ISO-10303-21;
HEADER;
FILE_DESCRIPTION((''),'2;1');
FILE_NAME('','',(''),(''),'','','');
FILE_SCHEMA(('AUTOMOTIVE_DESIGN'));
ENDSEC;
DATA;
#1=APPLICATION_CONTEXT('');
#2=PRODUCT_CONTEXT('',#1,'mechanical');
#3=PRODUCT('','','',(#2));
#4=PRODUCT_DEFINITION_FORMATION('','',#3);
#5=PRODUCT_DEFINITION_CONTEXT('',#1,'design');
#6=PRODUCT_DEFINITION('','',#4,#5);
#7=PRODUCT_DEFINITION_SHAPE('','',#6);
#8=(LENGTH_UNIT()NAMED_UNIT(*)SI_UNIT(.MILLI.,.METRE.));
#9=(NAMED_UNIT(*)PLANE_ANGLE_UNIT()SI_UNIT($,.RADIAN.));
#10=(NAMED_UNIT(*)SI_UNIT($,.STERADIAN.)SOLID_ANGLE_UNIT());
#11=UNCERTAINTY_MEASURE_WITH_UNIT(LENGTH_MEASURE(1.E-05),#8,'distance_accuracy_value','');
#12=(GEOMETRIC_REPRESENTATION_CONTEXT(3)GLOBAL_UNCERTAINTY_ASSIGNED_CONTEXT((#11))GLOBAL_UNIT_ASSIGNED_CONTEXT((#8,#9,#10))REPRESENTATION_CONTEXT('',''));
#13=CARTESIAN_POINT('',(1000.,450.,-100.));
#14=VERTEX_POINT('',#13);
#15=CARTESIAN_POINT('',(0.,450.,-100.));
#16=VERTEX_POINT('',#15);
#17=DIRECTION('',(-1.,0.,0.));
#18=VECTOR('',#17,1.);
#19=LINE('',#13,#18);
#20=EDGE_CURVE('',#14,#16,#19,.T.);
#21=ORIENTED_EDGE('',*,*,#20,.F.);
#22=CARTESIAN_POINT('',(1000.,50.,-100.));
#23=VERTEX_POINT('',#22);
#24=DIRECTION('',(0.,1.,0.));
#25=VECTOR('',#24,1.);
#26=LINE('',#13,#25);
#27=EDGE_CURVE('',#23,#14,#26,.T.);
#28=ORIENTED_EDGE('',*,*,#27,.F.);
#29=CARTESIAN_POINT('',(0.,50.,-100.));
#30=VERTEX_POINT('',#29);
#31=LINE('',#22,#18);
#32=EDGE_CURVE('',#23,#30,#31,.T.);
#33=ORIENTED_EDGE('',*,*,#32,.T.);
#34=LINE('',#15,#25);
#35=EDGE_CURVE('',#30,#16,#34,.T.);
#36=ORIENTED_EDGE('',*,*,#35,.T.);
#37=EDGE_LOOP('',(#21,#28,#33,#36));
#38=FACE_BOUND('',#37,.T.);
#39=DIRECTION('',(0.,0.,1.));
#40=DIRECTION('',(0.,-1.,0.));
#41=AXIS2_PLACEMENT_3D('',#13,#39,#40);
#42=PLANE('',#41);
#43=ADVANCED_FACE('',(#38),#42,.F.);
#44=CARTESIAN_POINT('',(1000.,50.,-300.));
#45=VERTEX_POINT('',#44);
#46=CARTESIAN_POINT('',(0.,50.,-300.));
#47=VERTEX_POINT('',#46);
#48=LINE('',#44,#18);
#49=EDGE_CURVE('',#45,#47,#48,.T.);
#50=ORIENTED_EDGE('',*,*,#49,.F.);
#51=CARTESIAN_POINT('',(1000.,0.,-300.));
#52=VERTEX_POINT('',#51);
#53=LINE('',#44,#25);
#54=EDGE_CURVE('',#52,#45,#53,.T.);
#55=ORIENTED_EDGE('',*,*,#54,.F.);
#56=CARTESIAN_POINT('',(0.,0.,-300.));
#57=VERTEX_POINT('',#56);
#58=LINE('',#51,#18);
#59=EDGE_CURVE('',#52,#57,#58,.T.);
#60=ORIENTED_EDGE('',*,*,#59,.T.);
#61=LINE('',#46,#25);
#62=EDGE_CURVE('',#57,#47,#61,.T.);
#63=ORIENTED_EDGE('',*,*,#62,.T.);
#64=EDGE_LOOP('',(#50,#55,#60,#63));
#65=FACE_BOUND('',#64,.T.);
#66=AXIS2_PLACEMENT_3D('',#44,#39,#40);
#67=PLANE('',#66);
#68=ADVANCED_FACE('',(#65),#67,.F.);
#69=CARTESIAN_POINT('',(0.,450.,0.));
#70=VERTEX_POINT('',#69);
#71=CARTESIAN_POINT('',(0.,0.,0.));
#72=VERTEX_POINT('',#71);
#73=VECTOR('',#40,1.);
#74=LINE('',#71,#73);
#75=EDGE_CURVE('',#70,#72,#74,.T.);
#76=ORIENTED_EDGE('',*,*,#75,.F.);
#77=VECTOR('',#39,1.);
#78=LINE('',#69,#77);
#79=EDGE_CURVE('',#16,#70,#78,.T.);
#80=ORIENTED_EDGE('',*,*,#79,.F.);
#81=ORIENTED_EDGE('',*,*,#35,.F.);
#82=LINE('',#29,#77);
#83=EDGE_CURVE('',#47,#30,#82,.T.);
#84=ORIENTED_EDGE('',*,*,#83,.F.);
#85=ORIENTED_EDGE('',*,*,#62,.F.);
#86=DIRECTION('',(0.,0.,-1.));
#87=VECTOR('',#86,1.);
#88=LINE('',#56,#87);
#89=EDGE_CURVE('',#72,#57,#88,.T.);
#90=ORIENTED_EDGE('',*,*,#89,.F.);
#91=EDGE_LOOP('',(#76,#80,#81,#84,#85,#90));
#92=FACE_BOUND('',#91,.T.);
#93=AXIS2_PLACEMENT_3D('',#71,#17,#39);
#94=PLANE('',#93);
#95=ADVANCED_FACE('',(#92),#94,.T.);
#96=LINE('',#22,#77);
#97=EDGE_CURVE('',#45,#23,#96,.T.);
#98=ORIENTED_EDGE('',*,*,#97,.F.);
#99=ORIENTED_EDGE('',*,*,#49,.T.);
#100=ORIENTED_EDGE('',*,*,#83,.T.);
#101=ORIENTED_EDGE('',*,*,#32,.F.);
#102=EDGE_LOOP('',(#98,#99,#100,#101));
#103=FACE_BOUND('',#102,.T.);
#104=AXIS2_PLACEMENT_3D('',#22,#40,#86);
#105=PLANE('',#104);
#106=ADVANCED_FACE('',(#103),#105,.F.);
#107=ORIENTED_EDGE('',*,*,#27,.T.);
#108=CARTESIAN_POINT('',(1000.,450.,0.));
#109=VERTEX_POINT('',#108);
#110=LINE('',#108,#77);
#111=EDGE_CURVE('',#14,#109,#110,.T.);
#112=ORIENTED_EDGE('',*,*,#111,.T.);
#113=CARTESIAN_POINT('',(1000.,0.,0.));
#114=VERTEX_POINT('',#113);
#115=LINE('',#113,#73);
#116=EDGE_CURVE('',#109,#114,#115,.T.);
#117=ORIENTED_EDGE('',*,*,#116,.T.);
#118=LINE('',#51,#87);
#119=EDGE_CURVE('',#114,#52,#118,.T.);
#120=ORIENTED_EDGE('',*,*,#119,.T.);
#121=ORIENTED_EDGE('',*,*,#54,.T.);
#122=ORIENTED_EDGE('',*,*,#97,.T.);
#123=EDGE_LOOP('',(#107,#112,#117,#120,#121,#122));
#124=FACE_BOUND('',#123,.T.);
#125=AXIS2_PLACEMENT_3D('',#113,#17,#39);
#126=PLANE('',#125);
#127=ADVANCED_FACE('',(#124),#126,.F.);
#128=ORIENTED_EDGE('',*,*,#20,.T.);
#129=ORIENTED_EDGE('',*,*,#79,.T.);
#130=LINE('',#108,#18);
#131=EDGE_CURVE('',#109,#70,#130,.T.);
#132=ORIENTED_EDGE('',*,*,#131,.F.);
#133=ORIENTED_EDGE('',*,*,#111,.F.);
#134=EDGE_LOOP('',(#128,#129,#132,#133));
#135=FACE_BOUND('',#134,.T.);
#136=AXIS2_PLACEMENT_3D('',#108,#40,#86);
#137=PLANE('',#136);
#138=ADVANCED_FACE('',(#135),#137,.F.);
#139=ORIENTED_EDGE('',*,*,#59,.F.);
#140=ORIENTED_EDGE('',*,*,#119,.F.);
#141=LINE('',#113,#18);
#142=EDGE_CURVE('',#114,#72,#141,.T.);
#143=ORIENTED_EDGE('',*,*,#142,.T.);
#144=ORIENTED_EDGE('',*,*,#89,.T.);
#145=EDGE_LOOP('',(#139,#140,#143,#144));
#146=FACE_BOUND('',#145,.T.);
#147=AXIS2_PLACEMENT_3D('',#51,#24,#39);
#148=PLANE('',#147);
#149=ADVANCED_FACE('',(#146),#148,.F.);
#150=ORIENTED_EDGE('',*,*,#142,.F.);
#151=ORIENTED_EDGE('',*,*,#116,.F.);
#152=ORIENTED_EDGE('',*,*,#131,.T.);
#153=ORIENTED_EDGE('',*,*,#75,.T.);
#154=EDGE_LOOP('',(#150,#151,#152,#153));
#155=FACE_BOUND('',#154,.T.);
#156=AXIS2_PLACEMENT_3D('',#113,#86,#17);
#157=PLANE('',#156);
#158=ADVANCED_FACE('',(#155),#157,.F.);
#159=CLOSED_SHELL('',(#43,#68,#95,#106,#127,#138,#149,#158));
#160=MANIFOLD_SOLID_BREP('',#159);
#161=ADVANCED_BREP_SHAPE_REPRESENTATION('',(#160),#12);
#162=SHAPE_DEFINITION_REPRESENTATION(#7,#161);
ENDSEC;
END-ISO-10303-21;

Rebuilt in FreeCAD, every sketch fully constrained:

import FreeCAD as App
import Part
import Sketcher
from FreeCAD import Vector


def add_polygon(sketch, points):
    """Adds a closed chain of lines whose ends are joined by coincident constraints."""
    first, n = sketch.GeometryCount, len(points)
    for a, b in zip(points, points[1:] + points[:1]):
        sketch.addGeometry(Part.LineSegment(App.Vector(*a, 0), App.Vector(*b, 0)), False)
    for i in range(n):
        sketch.addConstraint(Sketcher.Constraint("Coincident", first + i, 2, first + (i + 1) % n, 1))

doc = App.newDocument("Part")
body = doc.addObject("PartDesign::Body", "Body")

# Sketch on YZ plane
sketch1 = doc.addObject("Sketcher::SketchObject", "Sketch")
body.addObject(sketch1)
sketch1.AttachmentSupport = (doc.YZ_Plane, [""])
sketch1.MapMode = "FlatFace"
add_polygon(sketch1, [(450, 0), (0, 0), (0, -300), (50, -300), (50, -100), (450, -100)])  # lines 0-5
sketch1.addConstraint([
    Sketcher.Constraint("Horizontal", 0),
    Sketcher.Constraint("Vertical", 1),
    Sketcher.Constraint("Horizontal", 2),
    Sketcher.Constraint("Vertical", 3),
    Sketcher.Constraint("Horizontal", 4),
    Sketcher.Constraint("Vertical", 5),
    Sketcher.Constraint("Coincident", 0, 2, -1, 1),
    Sketcher.Constraint("DistanceX", 0, 2, 0, 1, 450.0),
    Sketcher.Constraint("DistanceX", 2, 1, 2, 2, 50.0),
    Sketcher.Constraint("DistanceY", 1, 2, 1, 1, 300.0),
    Sketcher.Constraint("DistanceY", 3, 1, 3, 2, 200.0),
])
pad1 = doc.addObject("PartDesign::Pad", "Pad")
body.addObject(pad1)
pad1.Profile = sketch1
pad1.Length = 1000

doc.recompute()
